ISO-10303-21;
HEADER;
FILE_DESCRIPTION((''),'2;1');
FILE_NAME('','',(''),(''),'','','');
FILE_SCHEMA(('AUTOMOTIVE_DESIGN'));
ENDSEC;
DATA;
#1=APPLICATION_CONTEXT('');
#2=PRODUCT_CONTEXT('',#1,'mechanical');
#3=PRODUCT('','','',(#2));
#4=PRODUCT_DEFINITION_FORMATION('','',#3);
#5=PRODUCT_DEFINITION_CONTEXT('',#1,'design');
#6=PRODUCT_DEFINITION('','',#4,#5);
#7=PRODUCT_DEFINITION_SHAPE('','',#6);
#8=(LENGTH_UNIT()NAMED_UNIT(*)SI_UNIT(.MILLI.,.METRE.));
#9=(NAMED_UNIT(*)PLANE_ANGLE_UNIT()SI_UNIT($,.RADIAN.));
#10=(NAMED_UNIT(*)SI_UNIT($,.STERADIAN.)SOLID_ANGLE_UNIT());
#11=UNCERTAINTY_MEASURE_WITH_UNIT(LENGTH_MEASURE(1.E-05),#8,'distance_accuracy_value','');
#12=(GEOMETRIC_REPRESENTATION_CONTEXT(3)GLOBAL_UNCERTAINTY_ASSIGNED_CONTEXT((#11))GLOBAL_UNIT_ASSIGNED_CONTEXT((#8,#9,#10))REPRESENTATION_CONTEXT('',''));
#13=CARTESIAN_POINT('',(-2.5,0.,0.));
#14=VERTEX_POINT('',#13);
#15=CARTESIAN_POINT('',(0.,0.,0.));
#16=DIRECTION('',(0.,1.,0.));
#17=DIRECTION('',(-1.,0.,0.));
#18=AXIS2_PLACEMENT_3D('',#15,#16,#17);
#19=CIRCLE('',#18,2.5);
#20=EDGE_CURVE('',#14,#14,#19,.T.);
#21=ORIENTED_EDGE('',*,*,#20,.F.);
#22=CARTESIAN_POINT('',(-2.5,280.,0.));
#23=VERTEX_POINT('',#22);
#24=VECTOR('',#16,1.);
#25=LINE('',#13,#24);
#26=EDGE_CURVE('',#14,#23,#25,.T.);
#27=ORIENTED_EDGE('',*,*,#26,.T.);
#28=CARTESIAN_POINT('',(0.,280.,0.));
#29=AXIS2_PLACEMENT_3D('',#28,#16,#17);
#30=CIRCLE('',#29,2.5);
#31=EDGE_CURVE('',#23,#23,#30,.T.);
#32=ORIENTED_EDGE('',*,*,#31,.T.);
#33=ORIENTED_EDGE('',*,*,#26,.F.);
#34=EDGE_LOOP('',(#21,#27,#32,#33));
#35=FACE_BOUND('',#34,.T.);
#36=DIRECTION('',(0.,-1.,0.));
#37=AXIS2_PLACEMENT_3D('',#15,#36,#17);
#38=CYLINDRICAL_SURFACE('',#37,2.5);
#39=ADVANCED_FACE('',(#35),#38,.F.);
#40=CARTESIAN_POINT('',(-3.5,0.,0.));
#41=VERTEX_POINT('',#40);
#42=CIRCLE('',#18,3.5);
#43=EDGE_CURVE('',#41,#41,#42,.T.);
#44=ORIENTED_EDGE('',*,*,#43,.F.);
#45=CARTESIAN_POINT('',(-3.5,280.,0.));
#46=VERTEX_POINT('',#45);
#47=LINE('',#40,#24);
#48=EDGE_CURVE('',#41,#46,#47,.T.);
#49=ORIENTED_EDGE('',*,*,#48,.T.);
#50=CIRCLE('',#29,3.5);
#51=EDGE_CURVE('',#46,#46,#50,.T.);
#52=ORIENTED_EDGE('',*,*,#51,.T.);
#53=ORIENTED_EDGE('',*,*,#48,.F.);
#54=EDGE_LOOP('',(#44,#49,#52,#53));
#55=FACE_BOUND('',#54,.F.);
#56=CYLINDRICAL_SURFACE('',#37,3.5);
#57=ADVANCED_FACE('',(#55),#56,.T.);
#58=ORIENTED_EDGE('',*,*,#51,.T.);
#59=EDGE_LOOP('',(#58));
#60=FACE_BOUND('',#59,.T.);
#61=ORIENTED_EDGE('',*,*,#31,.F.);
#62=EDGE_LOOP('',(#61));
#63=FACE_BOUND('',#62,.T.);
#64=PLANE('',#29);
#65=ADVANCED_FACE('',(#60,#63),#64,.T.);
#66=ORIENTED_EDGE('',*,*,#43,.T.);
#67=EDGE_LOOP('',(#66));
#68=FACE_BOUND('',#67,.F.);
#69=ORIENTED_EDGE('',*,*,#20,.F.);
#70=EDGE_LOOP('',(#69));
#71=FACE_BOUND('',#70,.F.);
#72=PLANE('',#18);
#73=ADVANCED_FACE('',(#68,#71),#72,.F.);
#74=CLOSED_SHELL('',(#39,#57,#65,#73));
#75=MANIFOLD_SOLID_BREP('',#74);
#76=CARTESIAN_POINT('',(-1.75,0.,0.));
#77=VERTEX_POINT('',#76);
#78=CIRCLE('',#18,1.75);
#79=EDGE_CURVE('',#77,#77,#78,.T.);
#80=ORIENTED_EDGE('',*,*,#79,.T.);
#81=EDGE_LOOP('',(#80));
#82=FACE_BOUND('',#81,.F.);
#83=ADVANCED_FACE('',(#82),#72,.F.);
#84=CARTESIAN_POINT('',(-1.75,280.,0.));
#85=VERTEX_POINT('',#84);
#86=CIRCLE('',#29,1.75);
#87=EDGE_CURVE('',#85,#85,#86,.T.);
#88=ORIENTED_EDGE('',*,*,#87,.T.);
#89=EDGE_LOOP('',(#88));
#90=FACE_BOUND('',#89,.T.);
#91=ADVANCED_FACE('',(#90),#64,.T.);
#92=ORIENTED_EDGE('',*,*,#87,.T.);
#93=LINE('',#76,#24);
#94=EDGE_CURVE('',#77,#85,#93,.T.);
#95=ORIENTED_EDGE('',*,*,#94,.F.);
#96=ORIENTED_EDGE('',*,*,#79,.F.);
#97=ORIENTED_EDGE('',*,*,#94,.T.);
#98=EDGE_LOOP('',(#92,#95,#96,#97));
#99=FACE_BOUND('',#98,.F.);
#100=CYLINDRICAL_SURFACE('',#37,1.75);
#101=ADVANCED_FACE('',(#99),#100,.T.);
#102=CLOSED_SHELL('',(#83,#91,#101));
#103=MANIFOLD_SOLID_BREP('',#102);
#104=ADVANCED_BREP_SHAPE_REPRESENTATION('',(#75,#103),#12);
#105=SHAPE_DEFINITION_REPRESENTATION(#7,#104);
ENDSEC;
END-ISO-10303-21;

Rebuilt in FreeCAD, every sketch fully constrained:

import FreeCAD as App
import Part
import Sketcher
Q = App.Units.Quantity

doc = App.newDocument("Part")
params = doc.addObject("Spreadsheet::Sheet", "Params")
for row, (alias, value) in enumerate([
    ("sketch1_diameter", "3.5 mm"),
    ("pad1_length", "280 mm"),
    ("sketch2_diameter", "7 mm"),
    ("sketch2_diameter2", "5 mm"),
    ("pad2_length", "280 mm"),
], start=1):
    params.set(f"A{row}", alias)
    params.set(f"B{row}", "=" + value)
    params.setAlias(f"B{row}", alias)

body = doc.addObject("PartDesign::Body", "Body")
body.AllowCompound = True

sketch1 = doc.addObject("Sketcher::SketchObject", "Sketch")
body.addObject(sketch1)
sketch1.AttachmentSupport = (doc.XZ_Plane, [""])
sketch1.MapMode = "FlatFace"
sketch1.addGeometry(Part.Circle(App.Vector(0, 0, 0), App.Vector(0, 0, 1), 1.8), False)
sketch1.addConstraint([
    Sketcher.Constraint("Coincident", 0, 3, -1, 1),
    Sketcher.Constraint("Diameter", 0, Q("3.5 mm")),
])
sketch1.setExpression("Constraints[1]", "Params.sketch1_diameter")
pad1 = doc.addObject("PartDesign::Pad", "Pad")
body.addObject(pad1)
pad1.Profile = sketch1
pad1.setExpression("Length", "Params.pad1_length")
pad1.Reversed = True

sketch2 = doc.addObject("Sketcher::SketchObject", "Sketch001")
body.addObject(sketch2)
sketch2.AttachmentSupport = (doc.XZ_Plane, [""])
sketch2.MapMode = "FlatFace"
sketch2.addGeometry([
    Part.Circle(App.Vector(0, 0, 0), App.Vector(0, 0, 1), 3.5),
    Part.Circle(App.Vector(0, 0, 0), App.Vector(0, 0, 1), 2.5),
], False)
sketch2.addConstraint([
    Sketcher.Constraint("Coincident", 0, 3, -1, 1),
    Sketcher.Constraint("Coincident", 1, 3, -1, 1),
    Sketcher.Constraint("Diameter", 0, Q("7 mm")),
    Sketcher.Constraint("Diameter", 1, Q("5 mm")),
])
sketch2.setExpression("Constraints[2]", "Params.sketch2_diameter")
sketch2.setExpression("Constraints[3]", "Params.sketch2_diameter2")
pad2 = doc.addObject("PartDesign::Pad", "Pad001")
body.addObject(pad2)
pad2.Profile = sketch2
pad2.setExpression("Length", "Params.pad2_length")
pad2.Reversed = True

doc.recompute()
